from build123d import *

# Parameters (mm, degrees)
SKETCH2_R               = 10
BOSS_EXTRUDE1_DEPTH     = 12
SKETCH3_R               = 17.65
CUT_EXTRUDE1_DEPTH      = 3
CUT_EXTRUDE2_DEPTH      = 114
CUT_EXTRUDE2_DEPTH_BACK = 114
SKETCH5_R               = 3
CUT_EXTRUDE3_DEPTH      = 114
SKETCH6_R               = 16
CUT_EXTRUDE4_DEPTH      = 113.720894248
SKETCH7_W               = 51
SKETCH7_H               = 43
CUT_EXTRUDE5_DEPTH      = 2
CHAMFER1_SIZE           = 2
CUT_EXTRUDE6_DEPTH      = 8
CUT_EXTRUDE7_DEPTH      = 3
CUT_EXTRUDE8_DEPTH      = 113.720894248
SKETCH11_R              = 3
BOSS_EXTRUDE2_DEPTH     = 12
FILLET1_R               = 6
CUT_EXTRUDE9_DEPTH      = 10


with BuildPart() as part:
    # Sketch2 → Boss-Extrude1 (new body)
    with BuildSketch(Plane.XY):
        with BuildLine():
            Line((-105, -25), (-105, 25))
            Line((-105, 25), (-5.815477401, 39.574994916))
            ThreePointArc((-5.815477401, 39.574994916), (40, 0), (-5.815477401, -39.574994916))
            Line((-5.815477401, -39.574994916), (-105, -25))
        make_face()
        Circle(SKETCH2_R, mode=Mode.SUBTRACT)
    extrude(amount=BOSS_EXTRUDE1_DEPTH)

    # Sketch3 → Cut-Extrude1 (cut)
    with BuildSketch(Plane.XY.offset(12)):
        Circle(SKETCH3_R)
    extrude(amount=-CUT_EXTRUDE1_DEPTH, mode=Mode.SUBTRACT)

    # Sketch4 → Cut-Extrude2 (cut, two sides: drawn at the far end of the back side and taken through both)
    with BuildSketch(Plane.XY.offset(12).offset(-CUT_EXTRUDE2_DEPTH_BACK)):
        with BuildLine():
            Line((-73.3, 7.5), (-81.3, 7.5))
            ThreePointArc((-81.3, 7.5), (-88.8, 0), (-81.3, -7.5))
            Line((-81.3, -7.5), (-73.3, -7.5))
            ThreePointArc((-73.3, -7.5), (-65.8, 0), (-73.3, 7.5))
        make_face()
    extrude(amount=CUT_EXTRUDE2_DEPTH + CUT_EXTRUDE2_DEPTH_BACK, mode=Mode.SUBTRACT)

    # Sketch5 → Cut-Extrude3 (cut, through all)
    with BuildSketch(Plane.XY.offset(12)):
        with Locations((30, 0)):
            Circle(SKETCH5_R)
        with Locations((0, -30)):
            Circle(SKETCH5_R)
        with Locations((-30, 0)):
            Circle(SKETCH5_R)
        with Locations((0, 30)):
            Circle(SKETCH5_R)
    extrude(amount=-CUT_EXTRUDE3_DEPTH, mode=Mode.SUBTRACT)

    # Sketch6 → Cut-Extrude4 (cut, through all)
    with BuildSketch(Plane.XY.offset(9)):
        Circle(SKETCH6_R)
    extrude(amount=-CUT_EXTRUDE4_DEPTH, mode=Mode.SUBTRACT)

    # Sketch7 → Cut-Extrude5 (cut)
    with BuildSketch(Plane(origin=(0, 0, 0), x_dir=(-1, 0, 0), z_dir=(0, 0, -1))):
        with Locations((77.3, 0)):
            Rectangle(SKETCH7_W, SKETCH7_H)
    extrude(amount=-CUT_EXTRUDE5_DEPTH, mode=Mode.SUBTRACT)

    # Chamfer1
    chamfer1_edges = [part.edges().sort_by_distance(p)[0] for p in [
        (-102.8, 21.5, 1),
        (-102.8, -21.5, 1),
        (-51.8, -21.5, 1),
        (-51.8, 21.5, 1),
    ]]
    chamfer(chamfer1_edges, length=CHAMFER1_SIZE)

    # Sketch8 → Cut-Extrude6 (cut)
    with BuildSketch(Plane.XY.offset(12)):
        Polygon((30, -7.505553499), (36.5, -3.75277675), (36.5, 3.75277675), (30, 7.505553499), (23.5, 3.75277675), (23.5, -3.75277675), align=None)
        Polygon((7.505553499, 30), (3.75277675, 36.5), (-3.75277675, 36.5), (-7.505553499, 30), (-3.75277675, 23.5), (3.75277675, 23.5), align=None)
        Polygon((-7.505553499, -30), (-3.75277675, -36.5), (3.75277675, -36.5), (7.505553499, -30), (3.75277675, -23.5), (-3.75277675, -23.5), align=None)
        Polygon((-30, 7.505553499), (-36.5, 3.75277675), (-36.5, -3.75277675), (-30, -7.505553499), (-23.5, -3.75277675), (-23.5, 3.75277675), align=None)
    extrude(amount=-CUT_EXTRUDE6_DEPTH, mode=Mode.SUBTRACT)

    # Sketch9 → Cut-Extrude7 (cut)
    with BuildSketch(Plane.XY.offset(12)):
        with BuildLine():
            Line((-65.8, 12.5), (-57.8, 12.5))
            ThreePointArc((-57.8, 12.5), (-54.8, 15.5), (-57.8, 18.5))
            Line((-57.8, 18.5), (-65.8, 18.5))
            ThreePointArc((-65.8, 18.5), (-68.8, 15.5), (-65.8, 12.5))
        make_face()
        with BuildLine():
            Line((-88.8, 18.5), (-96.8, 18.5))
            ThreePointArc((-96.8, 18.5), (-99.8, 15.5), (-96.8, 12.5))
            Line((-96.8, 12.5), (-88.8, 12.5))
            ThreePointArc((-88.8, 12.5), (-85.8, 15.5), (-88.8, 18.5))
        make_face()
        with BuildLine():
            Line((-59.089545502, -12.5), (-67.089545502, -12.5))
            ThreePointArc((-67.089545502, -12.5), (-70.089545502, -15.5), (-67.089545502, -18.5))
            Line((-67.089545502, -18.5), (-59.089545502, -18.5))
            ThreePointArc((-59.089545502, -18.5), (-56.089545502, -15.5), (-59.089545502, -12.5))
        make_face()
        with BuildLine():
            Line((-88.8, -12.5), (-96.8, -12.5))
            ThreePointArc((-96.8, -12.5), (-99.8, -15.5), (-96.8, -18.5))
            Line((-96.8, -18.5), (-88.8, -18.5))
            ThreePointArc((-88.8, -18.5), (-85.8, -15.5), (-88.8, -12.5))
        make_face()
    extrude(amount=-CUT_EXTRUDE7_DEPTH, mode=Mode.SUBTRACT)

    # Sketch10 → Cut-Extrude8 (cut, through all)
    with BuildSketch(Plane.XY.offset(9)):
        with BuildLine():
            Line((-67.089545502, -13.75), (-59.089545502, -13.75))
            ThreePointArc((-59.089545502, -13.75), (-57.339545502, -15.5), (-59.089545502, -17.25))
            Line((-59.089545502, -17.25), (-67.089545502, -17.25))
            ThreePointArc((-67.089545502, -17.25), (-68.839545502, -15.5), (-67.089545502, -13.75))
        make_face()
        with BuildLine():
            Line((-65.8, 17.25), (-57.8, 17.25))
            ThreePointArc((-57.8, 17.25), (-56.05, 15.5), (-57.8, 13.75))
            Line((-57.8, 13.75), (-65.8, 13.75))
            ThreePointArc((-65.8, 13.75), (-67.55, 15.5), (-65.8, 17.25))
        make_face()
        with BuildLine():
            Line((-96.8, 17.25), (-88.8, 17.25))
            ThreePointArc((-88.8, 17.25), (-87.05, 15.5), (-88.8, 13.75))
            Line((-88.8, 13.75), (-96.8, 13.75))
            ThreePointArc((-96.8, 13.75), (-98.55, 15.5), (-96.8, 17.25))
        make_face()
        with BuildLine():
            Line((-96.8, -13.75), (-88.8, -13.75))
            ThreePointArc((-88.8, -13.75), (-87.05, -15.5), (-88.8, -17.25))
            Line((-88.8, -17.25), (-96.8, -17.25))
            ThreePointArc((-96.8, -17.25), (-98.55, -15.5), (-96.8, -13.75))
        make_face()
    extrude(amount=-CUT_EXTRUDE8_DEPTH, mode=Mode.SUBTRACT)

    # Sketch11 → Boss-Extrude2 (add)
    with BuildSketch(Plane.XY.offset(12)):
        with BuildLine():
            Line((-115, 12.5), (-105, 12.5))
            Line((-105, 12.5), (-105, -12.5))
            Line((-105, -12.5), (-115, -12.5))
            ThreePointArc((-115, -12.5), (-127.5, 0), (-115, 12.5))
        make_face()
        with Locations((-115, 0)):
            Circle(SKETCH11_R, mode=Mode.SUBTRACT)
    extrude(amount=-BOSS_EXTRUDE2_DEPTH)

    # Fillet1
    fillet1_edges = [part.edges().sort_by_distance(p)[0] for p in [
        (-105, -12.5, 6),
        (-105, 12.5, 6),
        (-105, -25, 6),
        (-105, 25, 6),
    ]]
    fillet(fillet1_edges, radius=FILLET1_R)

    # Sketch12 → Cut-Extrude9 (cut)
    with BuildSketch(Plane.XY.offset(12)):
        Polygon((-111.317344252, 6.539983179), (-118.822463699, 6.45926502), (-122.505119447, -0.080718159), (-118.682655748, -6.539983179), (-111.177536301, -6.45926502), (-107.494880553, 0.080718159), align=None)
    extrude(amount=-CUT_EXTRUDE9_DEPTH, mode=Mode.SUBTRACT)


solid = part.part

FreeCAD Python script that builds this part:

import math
import FreeCAD as App
import Part
import Sketcher

V = App.Vector
Q = App.Units.Quantity


def edges_at(feature, points):
    """Names of the edges that pass closest to the given points."""
    edges = feature.Shape.Edges
    near = lambda p: min(range(len(edges)), key=lambda i: edges[i].distToShape(Part.Vertex(*p))[0])
    return sorted({f"Edge{near(p) + 1}" for p in points})


def add_polygon(sketch, points):
    """Adds a closed chain of lines whose ends are joined by coincident constraints."""
    first, n = sketch.GeometryCount, len(points)
    for a, b in zip(points, points[1:] + points[:1]):
        sketch.addGeometry(Part.LineSegment(App.Vector(*a, 0), App.Vector(*b, 0)), False)
    for i in range(n):
        sketch.addConstraint(Sketcher.Constraint("Coincident", first + i, 2, first + (i + 1) % n, 1))

doc = App.newDocument("Part")
body = doc.addObject("PartDesign::Body", "Body")

# Sketch on XY plane
sketch1 = doc.addObject("Sketcher::SketchObject", "Sketch")
body.addObject(sketch1)
sketch1.AttachmentSupport = (doc.XY_Plane, [""])
sketch1.MapMode = "FlatFace"
sketch1.addGeometry([
    Part.LineSegment(V(-105, 25, 0), V(-105, -25, 0)),  # 0
    Part.LineSegment(V(-105, -25, 0), V(-5.815477, -39.574995, 0)),  # 1
    Part.ArcOfCircle(Part.Circle(V(0, 0, 0), V(0, 0, 1), 40), math.radians(-98.359686), math.radians(98.359686)),  # 2
    Part.LineSegment(V(-5.815477, 39.574995, 0), V(-105, 25, 0)),  # 3
    Part.Circle(V(0, 0, 0), V(0, 0, 1), 10),  # 4
], False)
sketch1.addConstraint([
    Sketcher.Constraint("Coincident", 0, 2, 1, 1),
    Sketcher.Constraint("Tangent", 1, 2, 2, 1),
    Sketcher.Constraint("Tangent", 2, 2, 3, 1),
    Sketcher.Constraint("Coincident", 3, 2, 0, 1),
    Sketcher.Constraint("Vertical", 0),
    Sketcher.Constraint("Coincident", 2, 3, -1, 1),
    Sketcher.Constraint("Coincident", 4, 3, -1, 1),
    Sketcher.Constraint("Vertical", 1, 2, 2, 2),
    Sketcher.Constraint("Diameter", 4, Q("20 mm")),
    Sketcher.Constraint("Radius", 2, Q("40 mm")),
    Sketcher.Constraint("DistanceY", 0, 2, 0, 1, Q("50 mm")),
    Sketcher.Constraint("DistanceX", 0, 2, -1, 1, Q("105 mm")),
])
pad1 = doc.addObject("PartDesign::Pad", "Pad")
body.addObject(pad1)
pad1.Profile = sketch1
pad1.Length = 12

# Sketch on XY plane
sketch2 = doc.addObject("Sketcher::SketchObject", "Sketch001")
body.addObject(sketch2)
sketch2.AttachmentSupport = (doc.XY_Plane, [""])
sketch2.MapMode = "FlatFace"
sketch2.AttachmentOffset = App.Placement(V(0, 0, 12), App.Rotation())
sketch2.addGeometry(Part.Circle(V(0, 0, 0), V(0, 0, 1), 17.65), False)
sketch2.addConstraint([
    Sketcher.Constraint("Coincident", 0, 3, -1, 1),
    Sketcher.Constraint("Diameter", 0, Q("35.3 mm")),
])
pocket1 = doc.addObject("PartDesign::Pocket", "Pocket")
body.addObject(pocket1)
pocket1.Profile = sketch2
pocket1.Length = 3

# Sketch on XY plane
sketch3 = doc.addObject("Sketcher::SketchObject", "Sketch002")
body.addObject(sketch3)
sketch3.AttachmentSupport = (doc.XY_Plane, [""])
sketch3.MapMode = "FlatFace"
sketch3.AttachmentOffset = App.Placement(V(0, 0, 12), App.Rotation())
sketch3.addGeometry([
    Part.LineSegment(V(-73.3, 7.5, 0), V(-81.3, 7.5, 0)),
    Part.ArcOfCircle(Part.Circle(V(-81.3, 0, 0), V(0, 0, 1), 7.5), math.radians(90), math.radians(270)),
    Part.LineSegment(V(-81.3, -7.5, 0), V(-73.3, -7.5, 0)),
    Part.ArcOfCircle(Part.Circle(V(-73.3, 0, 0), V(0, 0, 1), 7.5), math.radians(-90), math.radians(90)),
], False)
sketch3.addConstraint([
    Sketcher.Constraint("Tangent", 0, 2, 1, 1),
    Sketcher.Constraint("Tangent", 1, 2, 2, 1),
    Sketcher.Constraint("Tangent", 2, 2, 3, 1),
    Sketcher.Constraint("Tangent", 3, 2, 0, 1),
    Sketcher.Constraint("Horizontal", 0),
    Sketcher.Constraint("Horizontal", 2),
    Sketcher.Constraint("PointOnObject", 1, 3, -1),
    Sketcher.Constraint("Radius", 1, Q("7.5 mm")),
    Sketcher.Constraint("DistanceX", 0, 2, 0, 1, Q("8 mm")),
    Sketcher.Constraint("DistanceX", 1, 3, -1, 1, Q("81.3 mm")),
])
pocket2 = doc.addObject("PartDesign::Pocket", "Pocket001")
body.addObject(pocket2)
pocket2.Profile = sketch3
pocket2.Type = "ThroughAll"
pocket2.Midplane = True

# Sketch on XY plane
sketch4 = doc.addObject("Sketcher::SketchObject", "Sketch003")
body.addObject(sketch4)
sketch4.AttachmentSupport = (doc.XY_Plane, [""])
sketch4.MapMode = "FlatFace"
sketch4.AttachmentOffset = App.Placement(V(0, 0, 12), App.Rotation())
sketch4.addGeometry([
    Part.Circle(V(30, 0, 0), V(0, 0, 1), 3),
    Part.Circle(V(0, -30, 0), V(0, 0, 1), 3),
    Part.Circle(V(-30, 0, 0), V(0, 0, 1), 3),
    Part.Circle(V(0, 30, 0), V(0, 0, 1), 3),
], False)
sketch4.addConstraint([
    Sketcher.Constraint("Equal", 0, 1),
    Sketcher.Constraint("Equal", 1, 2),
    Sketcher.Constraint("Equal", 2, 3),
    Sketcher.Constraint("Symmetric", 0, 3, 2, 3, -1, 1),
    Sketcher.Constraint("Symmetric", 1, 3, 3, 3, -1, 1),
    Sketcher.Constraint("PointOnObject", 0, 3, -1),
    Sketcher.Constraint("PointOnObject", 1, 3, -2),
    Sketcher.Constraint("Diameter", 0, Q("6 mm")),
    Sketcher.Constraint("DistanceX", -1, 1, 0, 3, Q("30 mm")),
    Sketcher.Constraint("DistanceY", 1, 3, -1, 1, Q("30 mm")),
])
pocket3 = doc.addObject("PartDesign::Pocket", "Pocket002")
body.addObject(pocket3)
pocket3.Profile = sketch4
pocket3.Type = "ThroughAll"

# Sketch on XY plane
sketch5 = doc.addObject("Sketcher::SketchObject", "Sketch004")
body.addObject(sketch5)
sketch5.AttachmentSupport = (doc.XY_Plane, [""])
sketch5.MapMode = "FlatFace"
sketch5.AttachmentOffset = App.Placement(V(0, 0, 9), App.Rotation())
sketch5.addGeometry(Part.Circle(V(0, 0, 0), V(0, 0, 1), 16), False)
sketch5.addConstraint([
    Sketcher.Constraint("Coincident", 0, 3, -1, 1),
    Sketcher.Constraint("Diameter", 0, Q("32 mm")),
])
pocket4 = doc.addObject("PartDesign::Pocket", "Pocket003")
body.addObject(pocket4)
pocket4.Profile = sketch5
pocket4.Type = "ThroughAll"

# Sketch on XY plane
sketch6 = doc.addObject("Sketcher::SketchObject", "Sketch005")
body.addObject(sketch6)
sketch6.AttachmentSupport = (doc.XY_Plane, [""])
sketch6.MapMode = "FlatFace"
add_polygon(sketch6, [(-51.8, 21.5), (-51.8, -21.5), (-102.8, -21.5), (-102.8, 21.5)])  # lines 0-3
sketch6.addConstraint([
    Sketcher.Constraint("Vertical", 0),
    Sketcher.Constraint("Horizontal", 1),
    Sketcher.Constraint("Vertical", 2),
    Sketcher.Constraint("Horizontal", 3),
    Sketcher.Constraint("DistanceX", 1, 2, 1, 1, Q("51 mm")),
    Sketcher.Constraint("DistanceY", 0, 2, 0, 1, Q("43 mm")),
    Sketcher.Constraint("DistanceX", 0, 2, -1, 1, Q("51.8 mm")),
    Sketcher.Constraint("DistanceY", 0, 2, -1, 1, Q("21.5 mm")),
])
pocket5 = doc.addObject("PartDesign::Pocket", "Pocket004")
body.addObject(pocket5)
pocket5.Profile = sketch6
pocket5.Length = 2
pocket5.Reversed = True
doc.recompute()

chamfer = doc.addObject("PartDesign::Chamfer", "Chamfer")
body.addObject(chamfer)
chamfer.Base = (pocket5, edges_at(pocket5, [
    (-102.8, 21.5, 1),
    (-102.8, -21.5, 1),
    (-51.8, -21.5, 1),
    (-51.8, 21.5, 1),
]))
chamfer.Size = 2

# Sketch on XY plane
sketch7 = doc.addObject("Sketcher::SketchObject", "Sketch006")
body.addObject(sketch7)
sketch7.AttachmentSupport = (doc.XY_Plane, [""])
sketch7.MapMode = "FlatFace"
sketch7.AttachmentOffset = App.Placement(V(0, 0, 12), App.Rotation())
add_polygon(sketch7, [(30, -7.505553), (36.5, -3.752777), (36.5, 3.752777), (30, 7.505553), (23.5, 3.752777), (23.5, -3.752777)])  # lines 0-5
add_polygon(sketch7, [(7.505553, 30), (3.752777, 36.5), (-3.752777, 36.5), (-7.505553, 30), (-3.752777, 23.5), (3.752777, 23.5)])  # lines 6-11
add_polygon(sketch7, [(-7.505553, -30), (-3.752777, -36.5), (3.752777, -36.5), (7.505553, -30), (3.752777, -23.5), (-3.752777, -23.5)])  # lines 12-17
add_polygon(sketch7, [(-30, 7.505553), (-36.5, 3.752777), (-36.5, -3.752777), (-30, -7.505553), (-23.5, -3.752777), (-23.5, 3.752777)])  # lines 18-23
sketch7.addConstraint([
    Sketcher.Constraint("Vertical", 1),
    Sketcher.Constraint("Vertical", 4),
    Sketcher.Constraint("Horizontal", 7),
    Sketcher.Constraint("Horizontal", 10),
    Sketcher.Constraint("Horizontal", 13),
    Sketcher.Constraint("Horizontal", 16),
    Sketcher.Constraint("Vertical", 19),
    Sketcher.Constraint("Vertical", 22),
    Sketcher.Constraint("Symmetric", 6, 2, 12, 2, -1, 1),
    Sketcher.Constraint("Symmetric", 8, 2, 14, 2, -1, 1),
    Sketcher.Constraint("Symmetric", 9, 2, 15, 2, -1, 1),
    Sketcher.Constraint("Symmetric", 11, 2, 17, 2, -1, 1),
    Sketcher.Constraint("Symmetric", 0, 2, 18, 2, -1, 1),
    Sketcher.Constraint("Symmetric", 2, 2, 20, 2, -1, 1),
    Sketcher.Constraint("Symmetric", 3, 2, 21, 2, -1, 1),
    Sketcher.Constraint("Symmetric", 5, 2, 23, 2, -1, 1),
    Sketcher.Constraint("Symmetric", 8, 2, 11, 2, -2),
    Sketcher.Constraint("Symmetric", 5, 2, 20, 2, -2),
    Sketcher.Constraint("Parallel", 0, 3),
    Sketcher.Constraint("Parallel", 2, 5),
    Sketcher.Constraint("Perpendicular", 3, 6),
    Sketcher.Constraint("Perpendicular", 5, 8),
    Sketcher.Constraint("Parallel", 6, 9),
    Sketcher.Constraint("Parallel", 8, 11),
    Sketcher.Constraint("Parallel", 11, 14),
    Sketcher.Constraint("Parallel", 14, 17),
    Sketcher.Constraint("Perpendicular", 17, 20),
    Sketcher.Constraint("Parallel", 20, 23),
    Sketcher.Constraint("Horizontal", 1, 2, 3, 2),
    Sketcher.Constraint("Horizontal", 0, 2, 4, 2),
    Sketcher.Constraint("Vertical", 7, 2, 9, 2),
    Sketcher.Constraint("Equal", 16, 1),
    Sketcher.Constraint("Equal", 5, 6),
    Sketcher.Constraint("Angle", 0, Q("30 deg")),
    Sketcher.Constraint("DistanceX", -1, 1, 2, 2, Q("30 mm")),
    Sketcher.Constraint("DistanceY", -1, 1, 8, 2, Q("30 mm")),
    Sketcher.Constraint("DistanceX", 3, 2, 1, 2, Q("13 mm")),
    Sketcher.Constraint("DistanceX", 7, 2, 7, 1, Q("7.505554 mm")),
])
pocket6 = doc.addObject("PartDesign::Pocket", "Pocket005")
body.addObject(pocket6)
pocket6.Profile = sketch7
pocket6.Length = 8

# Sketch on XY plane
sketch8 = doc.addObject("Sketcher::SketchObject", "Sketch007")
body.addObject(sketch8)
sketch8.AttachmentSupport = (doc.XY_Plane, [""])
sketch8.MapMode = "FlatFace"
sketch8.AttachmentOffset = App.Placement(V(0, 0, 12), App.Rotation())
sketch8.addGeometry([
    Part.LineSegment(V(-65.8, 12.5, 0), V(-57.8, 12.5, 0)),  # 0
    Part.ArcOfCircle(Part.Circle(V(-57.8, 15.5, 0), V(0, 0, 1), 3), math.radians(-90), math.radians(90)),  # 1
    Part.LineSegment(V(-57.8, 18.5, 0), V(-65.8, 18.5, 0)),  # 2
    Part.ArcOfCircle(Part.Circle(V(-65.8, 15.5, 0), V(0, 0, 1), 3), math.radians(90), math.radians(270)),  # 3
    Part.LineSegment(V(-88.8, 18.5, 0), V(-96.8, 18.5, 0)),  # 4
    Part.ArcOfCircle(Part.Circle(V(-96.8, 15.5, 0), V(0, 0, 1), 3), math.radians(90), math.radians(270)),  # 5
    Part.LineSegment(V(-96.8, 12.5, 0), V(-88.8, 12.5, 0)),  # 6
    Part.ArcOfCircle(Part.Circle(V(-88.8, 15.5, 0), V(0, 0, 1), 3), math.radians(-90), math.radians(90)),  # 7
    Part.LineSegment(V(-59.089546, -12.5, 0), V(-67.089546, -12.5, 0)),  # 8
    Part.ArcOfCircle(Part.Circle(V(-67.089546, -15.5, 0), V(0, 0, 1), 3), math.radians(90), math.radians(270)),  # 9
    Part.LineSegment(V(-67.089546, -18.5, 0), V(-59.089546, -18.5, 0)),  # 10
    Part.ArcOfCircle(Part.Circle(V(-59.089546, -15.5, 0), V(0, 0, 1), 3), math.radians(-90), math.radians(90)),  # 11
    Part.LineSegment(V(-88.8, -12.5, 0), V(-96.8, -12.5, 0)),  # 12
    Part.ArcOfCircle(Part.Circle(V(-96.8, -15.5, 0), V(0, 0, 1), 3), math.radians(90), math.radians(270)),  # 13
    Part.LineSegment(V(-96.8, -18.5, 0), V(-88.8, -18.5, 0)),  # 14
    Part.ArcOfCircle(Part.Circle(V(-88.8, -15.5, 0), V(0, 0, 1), 3), math.radians(-90), math.radians(90)),  # 15
], False)
sketch8.addConstraint([
    Sketcher.Constraint("Tangent", 0, 2, 1, 1),
    Sketcher.Constraint("Tangent", 1, 2, 2, 1),
    Sketcher.Constraint("Tangent", 2, 2, 3, 1),
    Sketcher.Constraint("Tangent", 3, 2, 0, 1),
    Sketcher.Constraint("Tangent", 4, 2, 5, 1),
    Sketcher.Constraint("Tangent", 5, 2, 6, 1),
    Sketcher.Constraint("Tangent", 6, 2, 7, 1),
    Sketcher.Constraint("Tangent", 7, 2, 4, 1),
    Sketcher.Constraint("Tangent", 8, 2, 9, 1),
    Sketcher.Constraint("Tangent", 9, 2, 10, 1),
    Sketcher.Constraint("Tangent", 10, 2, 11, 1),
    Sketcher.Constraint("Tangent", 11, 2, 8, 1),
    Sketcher.Constraint("Tangent", 12, 2, 13, 1),
    Sketcher.Constraint("Tangent", 13, 2, 14, 1),
    Sketcher.Constraint("Tangent", 14, 2, 15, 1),
    Sketcher.Constraint("Tangent", 15, 2, 12, 1),
    Sketcher.Constraint("Horizontal", 0),
    Sketcher.Constraint("Horizontal", 2),
    Sketcher.Constraint("Horizontal", 4),
    Sketcher.Constraint("Horizontal", 6),
    Sketcher.Constraint("Horizontal", 8),
    Sketcher.Constraint("Horizontal", 10),
    Sketcher.Constraint("Horizontal", 12),
    Sketcher.Constraint("Horizontal", 14),
    Sketcher.Constraint("Equal", 3, 5),
    Sketcher.Constraint("Equal", 7, 9),
    Sketcher.Constraint("Equal", 11, 13),
    Sketcher.Constraint("Symmetric", 5, 3, 13, 3, -1),
    Sketcher.Constraint("Horizontal", 3, 3, 5, 3),
    Sketcher.Constraint("Horizontal", 11, 3, 13, 3),
    Sketcher.Constraint("Vertical", 7, 3, 15, 3),
    Sketcher.Constraint("Equal", 2, 4),
    Sketcher.Constraint("Equal", 6, 8),
    Sketcher.Constraint("Radius", 1, Q("3 mm")),
    Sketcher.Constraint("DistanceX", 0, 1, 0, 2, Q("8 mm")),
    Sketcher.Constraint("DistanceX", 5, 3, 3, 3, Q("31 mm")),
    Sketcher.Constraint("DistanceY", 9, 3, 3, 3, Q("31 mm")),
    Sketcher.Constraint("DistanceX", 1, 3, -1, 1, Q("57.8 mm")),
    Sketcher.Constraint("DistanceX", 9, 3, -1, 1, Q("67.089546 mm")),
])
pocket7 = doc.addObject("PartDesign::Pocket", "Pocket006")
body.addObject(pocket7)
pocket7.Profile = sketch8
pocket7.Length = 3

# Sketch on XY plane
sketch9 = doc.addObject("Sketcher::SketchObject", "Sketch008")
body.addObject(sketch9)
sketch9.AttachmentSupport = (doc.XY_Plane, [""])
sketch9.MapMode = "FlatFace"
sketch9.AttachmentOffset = App.Placement(V(0, 0, 9), App.Rotation())
sketch9.addGeometry([
    Part.LineSegment(V(-59.089546, -13.75, 0), V(-67.089546, -13.75, 0)),  # 0
    Part.ArcOfCircle(Part.Circle(V(-67.089546, -15.5, 0), V(0, 0, 1), 1.75), math.radians(90), math.radians(270)),  # 1
    Part.LineSegment(V(-67.089546, -17.25, 0), V(-59.089546, -17.25, 0)),  # 2
    Part.ArcOfCircle(Part.Circle(V(-59.089546, -15.5, 0), V(0, 0, 1), 1.75), math.radians(-90), math.radians(90)),  # 3
    Part.LineSegment(V(-57.8, 17.25, 0), V(-65.8, 17.25, 0)),  # 4
    Part.ArcOfCircle(Part.Circle(V(-65.8, 15.5, 0), V(0, 0, 1), 1.75), math.radians(90), math.radians(270)),  # 5
    Part.LineSegment(V(-65.8, 13.75, 0), V(-57.8, 13.75, 0)),  # 6
    Part.ArcOfCircle(Part.Circle(V(-57.8, 15.5, 0), V(0, 0, 1), 1.75), math.radians(-90), math.radians(90)),  # 7
    Part.LineSegment(V(-88.8, 17.25, 0), V(-96.8, 17.25, 0)),  # 8
    Part.ArcOfCircle(Part.Circle(V(-96.8, 15.5, 0), V(0, 0, 1), 1.75), math.radians(90), math.radians(270)),  # 9
    Part.LineSegment(V(-96.8, 13.75, 0), V(-88.8, 13.75, 0)),  # 10
    Part.ArcOfCircle(Part.Circle(V(-88.8, 15.5, 0), V(0, 0, 1), 1.75), math.radians(-90), math.radians(90)),  # 11
    Part.LineSegment(V(-88.8, -13.75, 0), V(-96.8, -13.75, 0)),  # 12
    Part.ArcOfCircle(Part.Circle(V(-96.8, -15.5, 0), V(0, 0, 1), 1.75), math.radians(90), math.radians(270)),  # 13
    Part.LineSegment(V(-96.8, -17.25, 0), V(-88.8, -17.25, 0)),  # 14
    Part.ArcOfCircle(Part.Circle(V(-88.8, -15.5, 0), V(0, 0, 1), 1.75), math.radians(-90), math.radians(90)),  # 15
], False)
sketch9.addConstraint([
    Sketcher.Constraint("Tangent", 0, 2, 1, 1),
    Sketcher.Constraint("Tangent", 1, 2, 2, 1),
    Sketcher.Constraint("Tangent", 2, 2, 3, 1),
    Sketcher.Constraint("Tangent", 3, 2, 0, 1),
    Sketcher.Constraint("Tangent", 4, 2, 5, 1),
    Sketcher.Constraint("Tangent", 5, 2, 6, 1),
    Sketcher.Constraint("Tangent", 6, 2, 7, 1),
    Sketcher.Constraint("Tangent", 7, 2, 4, 1),
    Sketcher.Constraint("Tangent", 8, 2, 9, 1),
    Sketcher.Constraint("Tangent", 9, 2, 10, 1),
    Sketcher.Constraint("Tangent", 10, 2, 11, 1),
    Sketcher.Constraint("Tangent", 11, 2, 8, 1),
    Sketcher.Constraint("Tangent", 12, 2, 13, 1),
    Sketcher.Constraint("Tangent", 13, 2, 14, 1),
    Sketcher.Constraint("Tangent", 14, 2, 15, 1),
    Sketcher.Constraint("Tangent", 15, 2, 12, 1),
    Sketcher.Constraint("Horizontal", 0),
    Sketcher.Constraint("Horizontal", 2),
    Sketcher.Constraint("Horizontal", 4),
    Sketcher.Constraint("Horizontal", 6),
    Sketcher.Constraint("Horizontal", 8),
    Sketcher.Constraint("Horizontal", 10),
    Sketcher.Constraint("Horizontal", 12),
    Sketcher.Constraint("Horizontal", 14),
    Sketcher.Constraint("Equal", 3, 5),
    Sketcher.Constraint("Equal", 7, 9),
    Sketcher.Constraint("Equal", 11, 13),
    Sketcher.Constraint("Symmetric", 9, 3, 13, 3, -1),
    Sketcher.Constraint("Horizontal", 7, 3, 9, 3),
    Sketcher.Constraint("Horizontal", 3, 3, 13, 3),
    Sketcher.Constraint("Vertical", 11, 3, 15, 3),
    Sketcher.Constraint("Equal", 2, 4),
    Sketcher.Constraint("Equal", 6, 8),
    Sketcher.Constraint("DistanceX", 0, 2, 0, 1, Q("8 mm")),
    Sketcher.Constraint("Radius", 1, Q("1.75 mm")),
    Sketcher.Constraint("DistanceY", 1, 3, 5, 3, Q("31 mm")),
    Sketcher.Constraint("DistanceX", 9, 3, 5, 3, Q("31 mm")),
    Sketcher.Constraint("DistanceX", 5, 3, -1, 1, Q("65.8 mm")),
    Sketcher.Constraint("DistanceX", 1, 3, -1, 1, Q("67.089546 mm")),
])
pocket8 = doc.addObject("PartDesign::Pocket", "Pocket007")
body.addObject(pocket8)
pocket8.Profile = sketch9
pocket8.Type = "ThroughAll"

# Sketch on XY plane
sketch10 = doc.addObject("Sketcher::SketchObject", "Sketch009")
body.addObject(sketch10)
sketch10.AttachmentSupport = (doc.XY_Plane, [""])
sketch10.MapMode = "FlatFace"
sketch10.AttachmentOffset = App.Placement(V(0, 0, 12), App.Rotation())
sketch10.addGeometry([
    Part.LineSegment(V(-105, 12.5, 0), V(-115, 12.5, 0)),  # 0
    Part.ArcOfCircle(Part.Circle(V(-115, 0, 0), V(0, 0, 1), 12.5), math.radians(90), math.radians(270)),  # 1
    Part.LineSegment(V(-115, -12.5, 0), V(-105, -12.5, 0)),  # 2
    Part.LineSegment(V(-105, -12.5, 0), V(-105, 12.5, 0)),  # 3
    Part.Circle(V(-115, 0, 0), V(0, 0, 1), 3),  # 4
], False)
sketch10.addConstraint([
    Sketcher.Constraint("Tangent", 0, 2, 1, 1),
    Sketcher.Constraint("Tangent", 1, 2, 2, 1),
    Sketcher.Constraint("Coincident", 2, 2, 3, 1),
    Sketcher.Constraint("Coincident", 3, 2, 0, 1),
    Sketcher.Constraint("Horizontal", 0),
    Sketcher.Constraint("Horizontal", 2),
    Sketcher.Constraint("Vertical", 3),
    Sketcher.Constraint("Coincident", 4, 3, 1, 3),
    Sketcher.Constraint("PointOnObject", 1, 3, -1),
    Sketcher.Constraint("Diameter", 4, Q("6 mm")),
    Sketcher.Constraint("Radius", 1, Q("12.5 mm")),
    Sketcher.Constraint("DistanceX", 0, 2, 0, 1, Q("10 mm")),
    Sketcher.Constraint("DistanceX", 1, 3, -1, 1, Q("115 mm")),
])
pad2 = doc.addObject("PartDesign::Pad", "Pad001")
body.addObject(pad2)
pad2.Profile = sketch10
pad2.Length = 12
pad2.Reversed = True
doc.recompute()

fillet = doc.addObject("PartDesign::Fillet", "Fillet")
body.addObject(fillet)
fillet.Base = (pad2, edges_at(pad2, [
    (-105, -12.5, 6),
    (-105, 12.5, 6),
    (-105, -25, 6),
    (-105, 25, 6),
]))
fillet.Radius = 6

# Sketch on XY plane
sketch11 = doc.addObject("Sketcher::SketchObject", "Sketch010")
body.addObject(sketch11)
sketch11.AttachmentSupport = (doc.XY_Plane, [""])
sketch11.MapMode = "FlatFace"
sketch11.AttachmentOffset = App.Placement(V(0, 0, 12), App.Rotation())
add_polygon(sketch11, [(-111.317344, 6.539983), (-118.822464, 6.459265), (-122.505119, -0.080718), (-118.682656, -6.539983), (-111.177536, -6.459265), (-107.494881, 0.080718)])  # lines 0-5
sketch11.addConstraint([
    Sketcher.Constraint("Parallel", 0, 3),
    Sketcher.Constraint("Parallel", 1, 4),
    Sketcher.Constraint("Parallel", 2, 5),
    Sketcher.Constraint("Equal", 0, 1),
    Sketcher.Constraint("Equal", 1, 2),
    Sketcher.Constraint("Equal", 2, 3),
    Sketcher.Constraint("DistanceY", 2, 2, 4, 2, Q("6.620701 mm")),
    Sketcher.Constraint("DistanceX", 1, 2, -1, 1, Q("122.505119 mm")),
    Sketcher.Constraint("DistanceY", 1, 2, -1, 1, Q("0.080718 mm")),
    Sketcher.Constraint("DistanceX", 4, 2, -1, 1, Q("107.494881 mm")),
    Sketcher.Constraint("DistanceY", -1, 1, 4, 2, Q("0.080718 mm")),
    Sketcher.Constraint("DistanceY", 2, 2, 0, 2, Q("12.999248 mm")),
])
pocket9 = doc.addObject("PartDesign::Pocket", "Pocket008")
body.addObject(pocket9)
pocket9.Profile = sketch11
pocket9.Length = 10

doc.recompute()
